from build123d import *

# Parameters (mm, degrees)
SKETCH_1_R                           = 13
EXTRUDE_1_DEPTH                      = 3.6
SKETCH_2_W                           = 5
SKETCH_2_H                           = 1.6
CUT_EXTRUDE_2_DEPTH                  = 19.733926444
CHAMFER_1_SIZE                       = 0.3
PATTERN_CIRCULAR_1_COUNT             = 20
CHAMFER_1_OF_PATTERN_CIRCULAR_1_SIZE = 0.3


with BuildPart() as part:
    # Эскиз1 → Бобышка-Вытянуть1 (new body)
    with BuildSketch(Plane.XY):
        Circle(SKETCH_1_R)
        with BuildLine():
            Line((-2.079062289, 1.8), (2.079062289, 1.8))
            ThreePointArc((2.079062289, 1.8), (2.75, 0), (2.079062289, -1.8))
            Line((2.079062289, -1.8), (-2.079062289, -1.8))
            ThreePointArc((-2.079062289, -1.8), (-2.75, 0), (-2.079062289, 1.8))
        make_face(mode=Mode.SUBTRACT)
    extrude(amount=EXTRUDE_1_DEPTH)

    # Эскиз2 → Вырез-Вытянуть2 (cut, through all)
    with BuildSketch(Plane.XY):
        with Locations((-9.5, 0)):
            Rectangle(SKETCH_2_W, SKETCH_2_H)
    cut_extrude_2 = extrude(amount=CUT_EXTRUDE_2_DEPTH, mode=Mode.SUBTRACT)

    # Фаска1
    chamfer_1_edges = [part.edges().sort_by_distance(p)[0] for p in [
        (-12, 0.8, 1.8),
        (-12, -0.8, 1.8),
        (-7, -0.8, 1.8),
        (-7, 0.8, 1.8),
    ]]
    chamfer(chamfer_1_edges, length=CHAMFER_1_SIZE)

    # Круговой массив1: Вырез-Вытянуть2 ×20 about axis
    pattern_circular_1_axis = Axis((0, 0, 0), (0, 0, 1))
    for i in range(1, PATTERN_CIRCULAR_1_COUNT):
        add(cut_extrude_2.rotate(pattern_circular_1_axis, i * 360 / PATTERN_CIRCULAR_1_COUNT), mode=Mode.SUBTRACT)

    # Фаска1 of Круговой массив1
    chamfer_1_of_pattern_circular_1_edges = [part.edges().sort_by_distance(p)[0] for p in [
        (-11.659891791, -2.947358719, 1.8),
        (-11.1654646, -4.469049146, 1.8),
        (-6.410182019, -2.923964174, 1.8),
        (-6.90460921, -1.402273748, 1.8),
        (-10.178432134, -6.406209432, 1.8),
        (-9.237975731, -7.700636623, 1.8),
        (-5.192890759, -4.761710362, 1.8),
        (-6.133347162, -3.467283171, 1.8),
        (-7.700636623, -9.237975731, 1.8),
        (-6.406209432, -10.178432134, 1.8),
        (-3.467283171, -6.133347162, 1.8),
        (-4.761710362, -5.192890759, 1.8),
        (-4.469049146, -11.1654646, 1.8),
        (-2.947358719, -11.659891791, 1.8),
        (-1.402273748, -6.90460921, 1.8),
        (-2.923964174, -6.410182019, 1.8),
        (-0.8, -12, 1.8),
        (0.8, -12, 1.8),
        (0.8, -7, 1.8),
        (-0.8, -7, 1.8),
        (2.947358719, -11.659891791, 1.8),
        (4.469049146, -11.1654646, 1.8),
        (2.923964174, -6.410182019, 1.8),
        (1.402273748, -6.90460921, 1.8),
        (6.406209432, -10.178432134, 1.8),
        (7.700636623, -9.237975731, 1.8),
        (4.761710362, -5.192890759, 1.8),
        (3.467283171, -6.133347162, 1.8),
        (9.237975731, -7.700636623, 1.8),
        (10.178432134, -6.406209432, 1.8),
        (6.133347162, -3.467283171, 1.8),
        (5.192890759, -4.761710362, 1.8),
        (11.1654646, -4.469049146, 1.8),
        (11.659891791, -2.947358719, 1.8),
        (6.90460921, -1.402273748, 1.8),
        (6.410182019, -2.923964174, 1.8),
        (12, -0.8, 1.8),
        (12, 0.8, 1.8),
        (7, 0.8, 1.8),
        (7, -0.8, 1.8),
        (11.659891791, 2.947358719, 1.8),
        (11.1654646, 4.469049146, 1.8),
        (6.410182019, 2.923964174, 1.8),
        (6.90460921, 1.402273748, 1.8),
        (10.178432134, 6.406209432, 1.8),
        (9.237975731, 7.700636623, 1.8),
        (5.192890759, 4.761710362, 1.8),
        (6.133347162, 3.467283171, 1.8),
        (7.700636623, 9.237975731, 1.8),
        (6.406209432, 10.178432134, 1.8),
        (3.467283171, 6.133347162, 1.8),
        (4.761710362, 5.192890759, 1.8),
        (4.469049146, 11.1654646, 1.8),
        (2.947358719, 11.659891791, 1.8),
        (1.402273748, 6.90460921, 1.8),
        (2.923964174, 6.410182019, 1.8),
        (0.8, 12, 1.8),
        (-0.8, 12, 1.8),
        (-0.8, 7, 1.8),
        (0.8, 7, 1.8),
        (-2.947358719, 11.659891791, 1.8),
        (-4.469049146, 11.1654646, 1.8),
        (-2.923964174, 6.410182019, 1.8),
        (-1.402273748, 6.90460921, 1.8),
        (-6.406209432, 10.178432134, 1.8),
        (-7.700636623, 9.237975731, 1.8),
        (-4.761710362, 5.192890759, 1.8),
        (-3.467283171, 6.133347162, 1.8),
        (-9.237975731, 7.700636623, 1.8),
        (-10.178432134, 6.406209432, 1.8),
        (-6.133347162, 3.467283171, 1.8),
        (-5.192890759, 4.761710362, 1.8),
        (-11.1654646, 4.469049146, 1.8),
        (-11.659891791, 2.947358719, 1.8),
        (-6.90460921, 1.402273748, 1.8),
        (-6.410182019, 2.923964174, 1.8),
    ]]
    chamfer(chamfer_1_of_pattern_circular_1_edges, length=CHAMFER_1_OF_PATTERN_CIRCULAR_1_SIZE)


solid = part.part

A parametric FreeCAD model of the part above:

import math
import FreeCAD as App
import Part
import Sketcher

V = App.Vector
Q = App.Units.Quantity


def edges_at(feature, points):
    """Names of the edges that pass closest to the given points."""
    edges = feature.Shape.Edges
    near = lambda p: min(range(len(edges)), key=lambda i: edges[i].distToShape(Part.Vertex(*p))[0])
    return sorted({f"Edge{near(p) + 1}" for p in points})


def add_polygon(sketch, points):
    """Adds a closed chain of lines whose ends are joined by coincident constraints."""
    first, n = sketch.GeometryCount, len(points)
    for a, b in zip(points, points[1:] + points[:1]):
        sketch.addGeometry(Part.LineSegment(App.Vector(*a, 0), App.Vector(*b, 0)), False)
    for i in range(n):
        sketch.addConstraint(Sketcher.Constraint("Coincident", first + i, 2, first + (i + 1) % n, 1))

doc = App.newDocument("Part")
body = doc.addObject("PartDesign::Body", "Body")

sketch1 = body.newObject("Sketcher::SketchObject", "Sketch")
sketch1.AttachmentSupport = (doc.getObject("XY_Plane"), [""])
sketch1.MapMode = "FlatFace"
sketch1.addGeometry([
    Part.Circle(V(0, 0, 0), V(0, 0, 1), 13),
    Part.ArcOfCircle(Part.Circle(V(0, 0, 0), V(0, 0, 1), 2.8), math.radians(139), math.radians(221)),
    Part.LineSegment(V(-2.1, 1.8, 0), V(2.1, 1.8, 0)),
    Part.ArcOfCircle(Part.Circle(V(0, 0, 0), V(0, 0, 1), 2.8), math.radians(-41), math.radians(41)),
    Part.LineSegment(V(2.1, -1.8, 0), V(-2.1, -1.8, 0)),
], False)
sketch1.addConstraint([
    Sketcher.Constraint("Coincident", 1, 1, 2, 1),
    Sketcher.Constraint("Coincident", 2, 2, 3, 2),
    Sketcher.Constraint("Coincident", 3, 1, 4, 1),
    Sketcher.Constraint("Coincident", 4, 2, 1, 2),
    Sketcher.Constraint("Horizontal", 2),
    Sketcher.Constraint("Horizontal", 4),
    Sketcher.Constraint("Coincident", 0, 3, -1, 1),
    Sketcher.Constraint("Coincident", 1, 3, -1, 1),
    Sketcher.Constraint("Coincident", 3, 3, -1, 1),
    Sketcher.Constraint("Equal", 1, 3),
    Sketcher.Constraint("Vertical", 2, 2, 3, 1),
    Sketcher.Constraint("Diameter", 0, Q("26 mm")),
    Sketcher.Constraint("Radius", 1, Q("2.75 mm")),
    Sketcher.Constraint("DistanceY", -1, 1, 1, 1, Q("1.8 mm")),
])
pad1 = body.newObject("PartDesign::Pad", "Pad")
pad1.Profile = sketch1
pad1.Length = 3.6

sketch2 = body.newObject("Sketcher::SketchObject", "Sketch001")
sketch2.AttachmentSupport = (doc.getObject("XY_Plane"), [""])
sketch2.MapMode = "FlatFace"
add_polygon(sketch2, [(-12, 0.8), (-12, -0.8), (-7, -0.8), (-7, 0.8)])
sketch2.addConstraint([
    Sketcher.Constraint("Vertical", 0),
    Sketcher.Constraint("Horizontal", 1),
    Sketcher.Constraint("Vertical", 2),
    Sketcher.Constraint("Horizontal", 3),
    Sketcher.Constraint("DistanceX", 1, 1, 1, 2, Q("5 mm")),
    Sketcher.Constraint("DistanceY", 0, 2, 0, 1, Q("1.6 mm")),
    Sketcher.Constraint("DistanceX", 0, 2, -1, 1, Q("12 mm")),
    Sketcher.Constraint("DistanceY", 0, 2, -1, 1, Q("0.8 mm")),
])
pocket1 = body.newObject("PartDesign::Pocket", "Pocket")
pocket1.Profile = sketch2
pocket1.Type = "ThroughAll"
pocket1.Reversed = True
doc.recompute()

chamfer = body.newObject("PartDesign::Chamfer", "Chamfer")
chamfer.Base = (pocket1, edges_at(pocket1, [
    (-12, 0.8, 1.8),
    (-12, -0.8, 1.8),
    (-7, -0.8, 1.8),
    (-7, 0.8, 1.8),
]))
chamfer.Size = 0.3
doc.recompute()

polarpattern = body.newObject("PartDesign::PolarPattern", "PolarPattern")
polarpattern.Originals = [pocket1]
polarpattern.Axis = (doc.getObject("Z_Axis"), [""])
polarpattern.Angle = 360
polarpattern.Occurrences = 20
body.Tip = polarpattern
doc.recompute()

chamfer2 = body.newObject("PartDesign::Chamfer", "Chamfer001")
chamfer2.Base = (polarpattern, edges_at(polarpattern, [
    (-11.66, -2.947, 1.8),
    (-11.165, -4.469, 1.8),
    (-6.41, -2.924, 1.8),
    (-6.905, -1.402, 1.8),
    (-10.178, -6.406, 1.8),
    (-9.238, -7.701, 1.8),
    (-5.193, -4.762, 1.8),
    (-6.133, -3.467, 1.8),
    (-7.701, -9.238, 1.8),
    (-6.406, -10.178, 1.8),
    (-3.467, -6.133, 1.8),
    (-4.762, -5.193, 1.8),
    (-4.469, -11.165, 1.8),
    (-2.947, -11.66, 1.8),
    (-1.402, -6.905, 1.8),
    (-2.924, -6.41, 1.8),
    (-0.8, -12, 1.8),
    (0.8, -12, 1.8),
    (0.8, -7, 1.8),
    (-0.8, -7, 1.8),
    (2.947, -11.66, 1.8),
    (4.469, -11.165, 1.8),
    (2.924, -6.41, 1.8),
    (1.402, -6.905, 1.8),
    (6.406, -10.178, 1.8),
    (7.701, -9.238, 1.8),
    (4.762, -5.193, 1.8),
    (3.467, -6.133, 1.8),
    (9.238, -7.701, 1.8),
    (10.178, -6.406, 1.8),
    (6.133, -3.467, 1.8),
    (5.193, -4.762, 1.8),
    (11.165, -4.469, 1.8),
    (11.66, -2.947, 1.8),
    (6.905, -1.402, 1.8),
    (6.41, -2.924, 1.8),
    (12, -0.8, 1.8),
    (12, 0.8, 1.8),
    (7, 0.8, 1.8),
    (7, -0.8, 1.8),
    (11.66, 2.947, 1.8),
    (11.165, 4.469, 1.8),
    (6.41, 2.924, 1.8),
    (6.905, 1.402, 1.8),
    (10.178, 6.406, 1.8),
    (9.238, 7.701, 1.8),
    (5.193, 4.762, 1.8),
    (6.133, 3.467, 1.8),
    (7.701, 9.238, 1.8),
    (6.406, 10.178, 1.8),
    (3.467, 6.133, 1.8),
    (4.762, 5.193, 1.8),
    (4.469, 11.165, 1.8),
    (2.947, 11.66, 1.8),
    (1.402, 6.905, 1.8),
    (2.924, 6.41, 1.8),
    (0.8, 12, 1.8),
    (-0.8, 12, 1.8),
    (-0.8, 7, 1.8),
    (0.8, 7, 1.8),
    (-2.947, 11.66, 1.8),
    (-4.469, 11.165, 1.8),
    (-2.924, 6.41, 1.8),
    (-1.402, 6.905, 1.8),
    (-6.406, 10.178, 1.8),
    (-7.701, 9.238, 1.8),
    (-4.762, 5.193, 1.8),
    (-3.467, 6.133, 1.8),
    (-9.238, 7.701, 1.8),
    (-10.178, 6.406, 1.8),
    (-6.133, 3.467, 1.8),
    (-5.193, 4.762, 1.8),
    (-11.165, 4.469, 1.8),
    (-11.66, 2.947, 1.8),
    (-6.905, 1.402, 1.8),
    (-6.41, 2.924, 1.8),
]))
chamfer2.Size = 0.3

doc.recompute()
